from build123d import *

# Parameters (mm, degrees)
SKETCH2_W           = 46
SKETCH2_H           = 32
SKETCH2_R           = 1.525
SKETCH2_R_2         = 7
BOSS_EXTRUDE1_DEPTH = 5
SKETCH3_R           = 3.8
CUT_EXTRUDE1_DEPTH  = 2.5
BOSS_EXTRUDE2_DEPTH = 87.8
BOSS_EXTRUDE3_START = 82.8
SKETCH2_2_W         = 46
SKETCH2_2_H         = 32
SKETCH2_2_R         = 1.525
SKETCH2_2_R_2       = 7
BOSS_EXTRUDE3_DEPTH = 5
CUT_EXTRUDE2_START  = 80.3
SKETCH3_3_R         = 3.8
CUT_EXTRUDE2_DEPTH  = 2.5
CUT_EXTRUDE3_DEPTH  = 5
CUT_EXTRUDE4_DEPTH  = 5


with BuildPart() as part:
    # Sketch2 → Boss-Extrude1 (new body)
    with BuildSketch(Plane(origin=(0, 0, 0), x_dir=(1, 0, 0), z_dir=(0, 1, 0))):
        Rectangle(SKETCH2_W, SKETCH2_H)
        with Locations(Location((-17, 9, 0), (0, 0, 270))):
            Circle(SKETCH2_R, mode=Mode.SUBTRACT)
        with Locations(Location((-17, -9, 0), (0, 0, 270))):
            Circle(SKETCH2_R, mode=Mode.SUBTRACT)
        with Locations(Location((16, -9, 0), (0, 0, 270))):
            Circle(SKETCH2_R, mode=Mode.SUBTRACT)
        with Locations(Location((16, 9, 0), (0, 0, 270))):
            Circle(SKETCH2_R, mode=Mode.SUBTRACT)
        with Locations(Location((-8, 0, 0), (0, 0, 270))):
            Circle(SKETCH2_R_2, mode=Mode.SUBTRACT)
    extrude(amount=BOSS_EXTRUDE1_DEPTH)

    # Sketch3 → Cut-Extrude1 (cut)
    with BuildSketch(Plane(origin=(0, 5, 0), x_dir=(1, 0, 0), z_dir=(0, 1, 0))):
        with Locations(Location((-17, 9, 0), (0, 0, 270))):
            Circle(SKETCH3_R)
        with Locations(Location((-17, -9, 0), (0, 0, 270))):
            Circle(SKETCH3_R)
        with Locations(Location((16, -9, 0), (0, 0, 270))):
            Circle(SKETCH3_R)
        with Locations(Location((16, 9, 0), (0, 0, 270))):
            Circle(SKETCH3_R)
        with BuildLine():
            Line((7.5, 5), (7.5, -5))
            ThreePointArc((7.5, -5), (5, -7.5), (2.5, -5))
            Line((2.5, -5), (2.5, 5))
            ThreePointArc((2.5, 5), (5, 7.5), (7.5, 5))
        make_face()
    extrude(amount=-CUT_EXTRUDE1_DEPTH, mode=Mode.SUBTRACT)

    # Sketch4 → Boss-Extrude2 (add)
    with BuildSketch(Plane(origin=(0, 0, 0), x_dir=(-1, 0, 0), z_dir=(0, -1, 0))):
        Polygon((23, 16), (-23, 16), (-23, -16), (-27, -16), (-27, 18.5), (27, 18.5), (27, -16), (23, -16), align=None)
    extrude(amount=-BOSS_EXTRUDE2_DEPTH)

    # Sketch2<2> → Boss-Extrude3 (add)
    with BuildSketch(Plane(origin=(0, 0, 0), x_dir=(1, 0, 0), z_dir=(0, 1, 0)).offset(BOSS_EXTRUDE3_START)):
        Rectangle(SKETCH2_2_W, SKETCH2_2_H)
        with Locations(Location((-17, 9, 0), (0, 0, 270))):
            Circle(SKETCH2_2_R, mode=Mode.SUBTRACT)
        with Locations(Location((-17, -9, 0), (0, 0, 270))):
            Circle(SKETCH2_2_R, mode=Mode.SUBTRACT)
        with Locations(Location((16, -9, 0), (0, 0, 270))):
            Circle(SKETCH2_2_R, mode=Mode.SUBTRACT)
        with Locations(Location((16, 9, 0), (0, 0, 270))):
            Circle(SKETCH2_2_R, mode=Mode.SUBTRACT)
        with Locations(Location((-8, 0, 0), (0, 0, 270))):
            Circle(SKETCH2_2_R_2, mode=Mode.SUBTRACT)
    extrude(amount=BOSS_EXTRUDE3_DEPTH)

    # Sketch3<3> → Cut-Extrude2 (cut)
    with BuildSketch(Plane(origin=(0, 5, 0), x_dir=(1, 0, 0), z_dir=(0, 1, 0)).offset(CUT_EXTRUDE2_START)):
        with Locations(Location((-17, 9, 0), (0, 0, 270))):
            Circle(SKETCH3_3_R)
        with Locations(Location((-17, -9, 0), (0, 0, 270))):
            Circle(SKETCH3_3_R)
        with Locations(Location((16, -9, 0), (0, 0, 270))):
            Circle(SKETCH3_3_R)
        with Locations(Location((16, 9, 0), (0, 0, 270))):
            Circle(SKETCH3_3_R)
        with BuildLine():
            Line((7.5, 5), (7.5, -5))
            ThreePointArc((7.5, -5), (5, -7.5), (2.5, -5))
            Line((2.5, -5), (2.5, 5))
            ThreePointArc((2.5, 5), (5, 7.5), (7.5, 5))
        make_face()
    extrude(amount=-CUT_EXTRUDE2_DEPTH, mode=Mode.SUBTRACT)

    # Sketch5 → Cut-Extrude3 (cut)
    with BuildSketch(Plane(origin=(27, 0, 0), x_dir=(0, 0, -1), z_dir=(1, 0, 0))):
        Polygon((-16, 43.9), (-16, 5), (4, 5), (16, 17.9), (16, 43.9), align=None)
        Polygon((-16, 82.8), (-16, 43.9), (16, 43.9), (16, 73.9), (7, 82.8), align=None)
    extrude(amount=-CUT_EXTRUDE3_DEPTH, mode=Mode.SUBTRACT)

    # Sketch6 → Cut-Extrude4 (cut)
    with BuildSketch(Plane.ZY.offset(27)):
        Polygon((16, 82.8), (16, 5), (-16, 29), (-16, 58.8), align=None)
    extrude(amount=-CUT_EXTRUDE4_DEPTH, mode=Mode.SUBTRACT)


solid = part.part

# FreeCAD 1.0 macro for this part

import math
import FreeCAD as App
import Part
import Sketcher

V = App.Vector
Q = App.Units.Quantity


def add_polygon(sketch, points):
    """Adds a closed chain of lines whose ends are joined by coincident constraints."""
    first, n = sketch.GeometryCount, len(points)
    for a, b in zip(points, points[1:] + points[:1]):
        sketch.addGeometry(Part.LineSegment(App.Vector(*a, 0), App.Vector(*b, 0)), False)
    for i in range(n):
        sketch.addConstraint(Sketcher.Constraint("Coincident", first + i, 2, first + (i + 1) % n, 1))

doc = App.newDocument("Part")
body = doc.addObject("PartDesign::Body", "Body")

# Sketch on XZ plane
sketch1 = body.newObject("Sketcher::SketchObject", "Sketch")
sketch1.AttachmentSupport = (doc.getObject("XZ_Plane"), [""])
sketch1.MapMode = "FlatFace"
add_polygon(sketch1, [(-23, -16), (-23, 16), (23, 16), (23, -16)])  # lines 0-3
sketch1.addGeometry(Part.Circle(V(-17, 9, 0), V(0, 0, 1), 1.525), False)  # 4
sketch1.addGeometry(Part.Circle(V(16, 9, 0), V(0, 0, 1), 1.525), False)  # 5
sketch1.addGeometry(Part.Circle(V(-8, 0, 0), V(0, 0, 1), 7), False)  # 6
sketch1.addGeometry(Part.Circle(V(-17, -9, 0), V(0, 0, 1), 1.525), False)  # 7
sketch1.addGeometry(Part.Circle(V(16, -9, 0), V(0, 0, 1), 1.525), False)  # 8
sketch1.addConstraint([
    Sketcher.Constraint("Vertical", 0),
    Sketcher.Constraint("Horizontal", 1),
    Sketcher.Constraint("Vertical", 2),
    Sketcher.Constraint("Horizontal", 3),
    Sketcher.Constraint("Equal", 4, 5),
    Sketcher.Constraint("Equal", 5, 7),
    Sketcher.Constraint("Equal", 7, 8),
    Sketcher.Constraint("Symmetric", 0, 2, 2, 2, -1, 1),
    Sketcher.Constraint("Symmetric", 4, 3, 7, 3, -1),
    Sketcher.Constraint("Symmetric", 5, 3, 8, 3, -1),
    Sketcher.Constraint("PointOnObject", 6, 3, -1),
    Sketcher.Constraint("Horizontal", 4, 3, 5, 3),
    Sketcher.Constraint("Diameter", 6, Q("14 mm")),
    Sketcher.Constraint("Diameter", 4, Q("3.05 mm")),
    Sketcher.Constraint("DistanceX", 1, 1, 1, 2, Q("46 mm")),
    Sketcher.Constraint("DistanceY", 0, 1, 0, 2, Q("32 mm")),
    Sketcher.Constraint("DistanceX", 4, 3, -1, 1, Q("17 mm")),
    Sketcher.Constraint("DistanceY", -1, 1, 4, 3, Q("9 mm")),
    Sketcher.Constraint("DistanceX", -1, 1, 5, 3, Q("16 mm")),
    Sketcher.Constraint("DistanceX", 6, 3, -1, 1, Q("8 mm")),
])
pad1 = body.newObject("PartDesign::Pad", "Pad")
pad1.Profile = sketch1
pad1.Length = 5
pad1.Reversed = True

# Sketch on XZ plane
sketch2 = body.newObject("Sketcher::SketchObject", "Sketch001")
sketch2.AttachmentSupport = (doc.getObject("XZ_Plane"), [""])
sketch2.MapMode = "FlatFace"
sketch2.AttachmentOffset = App.Placement(V(0, 0, -5), App.Rotation())
sketch2.addGeometry([
    Part.Circle(V(-17, -9, 0), V(0, 0, 1), 3.8),  # 0
    Part.Circle(V(-17, 9, 0), V(0, 0, 1), 3.8),  # 1
    Part.Circle(V(16, 9, 0), V(0, 0, 1), 3.8),  # 2
    Part.Circle(V(16, -9, 0), V(0, 0, 1), 3.8),  # 3
    Part.LineSegment(V(7.5, 5, 0), V(7.5, -5, 0)),  # 4
    Part.ArcOfCircle(Part.Circle(V(5, -5, 0), V(0, 0, 1), 2.5), math.radians(180), math.radians(360)),  # 5
    Part.LineSegment(V(2.5, -5, 0), V(2.5, 5, 0)),  # 6
    Part.ArcOfCircle(Part.Circle(V(5, 5, 0), V(0, 0, 1), 2.5), math.radians(0), math.radians(180)),  # 7
], False)
sketch2.addConstraint([
    Sketcher.Constraint("Tangent", 4, 2, 5, 2),
    Sketcher.Constraint("Tangent", 5, 1, 6, 1),
    Sketcher.Constraint("Tangent", 6, 2, 7, 2),
    Sketcher.Constraint("Tangent", 7, 1, 4, 1),
    Sketcher.Constraint("Vertical", 4),
    Sketcher.Constraint("Vertical", 6),
    Sketcher.Constraint("Equal", 0, 1),
    Sketcher.Constraint("Equal", 1, 2),
    Sketcher.Constraint("Equal", 2, 3),
    Sketcher.Constraint("Symmetric", 0, 3, 1, 3, -1),
    Sketcher.Constraint("Symmetric", 2, 3, 3, 3, -1),
    Sketcher.Constraint("Horizontal", 1, 3, 2, 3),
    Sketcher.Constraint("Diameter", 0, Q("7.6 mm")),
    Sketcher.Constraint("Radius", 5, Q("2.5 mm")),
    Sketcher.Constraint("DistanceY", 4, 2, 4, 1, Q("10 mm")),
    Sketcher.Constraint("DistanceX", 0, 3, -1, 1, Q("17 mm")),
    Sketcher.Constraint("DistanceY", 0, 3, -1, 1, Q("9 mm")),
    Sketcher.Constraint("DistanceX", -1, 1, 2, 3, Q("16 mm")),
    Sketcher.Constraint("DistanceX", -1, 1, 5, 3, Q("5 mm")),
    Sketcher.Constraint("DistanceY", 5, 3, -1, 1, Q("5 mm")),
])
pocket1 = body.newObject("PartDesign::Pocket", "Pocket")
pocket1.Profile = sketch2
pocket1.Length = 2.5
pocket1.Reversed = True

# Sketch on XZ plane
sketch3 = body.newObject("Sketcher::SketchObject", "Sketch002")
sketch3.AttachmentSupport = (doc.getObject("XZ_Plane"), [""])
sketch3.MapMode = "FlatFace"
add_polygon(sketch3, [(23, -16), (-23, -16), (-23, 16), (-27, 16), (-27, -18.5), (27, -18.5), (27, 16), (23, 16)])  # lines 0-7
sketch3.addConstraint([
    Sketcher.Constraint("Horizontal", 0),
    Sketcher.Constraint("Vertical", 1),
    Sketcher.Constraint("Horizontal", 2),
    Sketcher.Constraint("Vertical", 3),
    Sketcher.Constraint("Horizontal", 4),
    Sketcher.Constraint("Vertical", 5),
    Sketcher.Constraint("Horizontal", 6),
    Sketcher.Constraint("Vertical", 7),
    Sketcher.Constraint("Symmetric", 0, 2, 6, 2, -1, 1),
    Sketcher.Constraint("Symmetric", 2, 2, 5, 2, -2),
    Sketcher.Constraint("DistanceX", 0, 2, 0, 1, Q("46 mm")),
    Sketcher.Constraint("DistanceX", 2, 2, 2, 1, Q("4 mm")),
    Sketcher.Constraint("DistanceY", 1, 1, 1, 2, Q("32 mm")),
    Sketcher.Constraint("DistanceY", 3, 2, 3, 1, Q("34.5 mm")),
])
pad2 = body.newObject("PartDesign::Pad", "Pad001")
pad2.Profile = sketch3
pad2.Length = 87.8
pad2.Reversed = True

# Sketch on XZ plane
sketch4 = body.newObject("Sketcher::SketchObject", "Sketch003")
sketch4.AttachmentSupport = (doc.getObject("XZ_Plane"), [""])
sketch4.MapMode = "FlatFace"
sketch4.AttachmentOffset = App.Placement(V(0, 0, -82.8), App.Rotation())
add_polygon(sketch4, [(-23, -16), (-23, 16), (23, 16), (23, -16)])  # lines 0-3
sketch4.addGeometry(Part.Circle(V(-17, 9, 0), V(0, 0, 1), 1.525), False)  # 4
sketch4.addGeometry(Part.Circle(V(16, 9, 0), V(0, 0, 1), 1.525), False)  # 5
sketch4.addGeometry(Part.Circle(V(-8, 0, 0), V(0, 0, 1), 7), False)  # 6
sketch4.addGeometry(Part.Circle(V(-17, -9, 0), V(0, 0, 1), 1.525), False)  # 7
sketch4.addGeometry(Part.Circle(V(16, -9, 0), V(0, 0, 1), 1.525), False)  # 8
sketch4.addConstraint([
    Sketcher.Constraint("Vertical", 0),
    Sketcher.Constraint("Horizontal", 1),
    Sketcher.Constraint("Vertical", 2),
    Sketcher.Constraint("Horizontal", 3),
    Sketcher.Constraint("Equal", 4, 5),
    Sketcher.Constraint("Equal", 5, 7),
    Sketcher.Constraint("Equal", 7, 8),
    Sketcher.Constraint("Symmetric", 0, 2, 2, 2, -1, 1),
    Sketcher.Constraint("Symmetric", 4, 3, 7, 3, -1),
    Sketcher.Constraint("Symmetric", 5, 3, 8, 3, -1),
    Sketcher.Constraint("PointOnObject", 6, 3, -1),
    Sketcher.Constraint("Horizontal", 4, 3, 5, 3),
    Sketcher.Constraint("Diameter", 6, Q("14 mm")),
    Sketcher.Constraint("Diameter", 4, Q("3.05 mm")),
    Sketcher.Constraint("DistanceX", 1, 1, 1, 2, Q("46 mm")),
    Sketcher.Constraint("DistanceY", 0, 1, 0, 2, Q("32 mm")),
    Sketcher.Constraint("DistanceX", 4, 3, -1, 1, Q("17 mm")),
    Sketcher.Constraint("DistanceY", -1, 1, 4, 3, Q("9 mm")),
    Sketcher.Constraint("DistanceX", -1, 1, 5, 3, Q("16 mm")),
    Sketcher.Constraint("DistanceX", 6, 3, -1, 1, Q("8 mm")),
])
pad3 = body.newObject("PartDesign::Pad", "Pad002")
pad3.Profile = sketch4
pad3.Length = 5
pad3.Reversed = True

# Sketch on XZ plane
sketch5 = body.newObject("Sketcher::SketchObject", "Sketch004")
sketch5.AttachmentSupport = (doc.getObject("XZ_Plane"), [""])
sketch5.MapMode = "FlatFace"
sketch5.AttachmentOffset = App.Placement(V(0, 0, -85.3), App.Rotation())
sketch5.addGeometry([
    Part.Circle(V(-17, -9, 0), V(0, 0, 1), 3.8),  # 0
    Part.Circle(V(-17, 9, 0), V(0, 0, 1), 3.8),  # 1
    Part.Circle(V(16, 9, 0), V(0, 0, 1), 3.8),  # 2
    Part.Circle(V(16, -9, 0), V(0, 0, 1), 3.8),  # 3
    Part.LineSegment(V(7.5, 5, 0), V(7.5, -5, 0)),  # 4
    Part.ArcOfCircle(Part.Circle(V(5, -5, 0), V(0, 0, 1), 2.5), math.radians(180), math.radians(360)),  # 5
    Part.LineSegment(V(2.5, -5, 0), V(2.5, 5, 0)),  # 6
    Part.ArcOfCircle(Part.Circle(V(5, 5, 0), V(0, 0, 1), 2.5), math.radians(0), math.radians(180)),  # 7
], False)
sketch5.addConstraint([
    Sketcher.Constraint("Tangent", 4, 2, 5, 2),
    Sketcher.Constraint("Tangent", 5, 1, 6, 1),
    Sketcher.Constraint("Tangent", 6, 2, 7, 2),
    Sketcher.Constraint("Tangent", 7, 1, 4, 1),
    Sketcher.Constraint("Vertical", 4),
    Sketcher.Constraint("Vertical", 6),
    Sketcher.Constraint("Equal", 0, 1),
    Sketcher.Constraint("Equal", 1, 2),
    Sketcher.Constraint("Equal", 2, 3),
    Sketcher.Constraint("Symmetric", 0, 3, 1, 3, -1),
    Sketcher.Constraint("Symmetric", 2, 3, 3, 3, -1),
    Sketcher.Constraint("Horizontal", 1, 3, 2, 3),
    Sketcher.Constraint("Diameter", 0, Q("7.6 mm")),
    Sketcher.Constraint("Radius", 5, Q("2.5 mm")),
    Sketcher.Constraint("DistanceY", 4, 2, 4, 1, Q("10 mm")),
    Sketcher.Constraint("DistanceX", 0, 3, -1, 1, Q("17 mm")),
    Sketcher.Constraint("DistanceY", 0, 3, -1, 1, Q("9 mm")),
    Sketcher.Constraint("DistanceX", -1, 1, 2, 3, Q("16 mm")),
    Sketcher.Constraint("DistanceX", -1, 1, 5, 3, Q("5 mm")),
    Sketcher.Constraint("DistanceY", 5, 3, -1, 1, Q("5 mm")),
])
pocket2 = body.newObject("PartDesign::Pocket", "Pocket001")
pocket2.Profile = sketch5
pocket2.Length = 2.5
pocket2.Reversed = True

# Sketch on YZ plane
sketch6 = body.newObject("Sketcher::SketchObject", "Sketch005")
sketch6.AttachmentSupport = (doc.getObject("YZ_Plane"), [""])
sketch6.MapMode = "FlatFace"
sketch6.AttachmentOffset = App.Placement(V(0, 0, 27), App.Rotation())
add_polygon(sketch6, [(5, 16), (5, -4), (17.9, -16), (73.9, -16), (82.8, -7), (82.8, 16)])  # lines 0-5
sketch6.addConstraint([
    Sketcher.Constraint("Vertical", 0),
    Sketcher.Constraint("Horizontal", 2),
    Sketcher.Constraint("Vertical", 4),
    Sketcher.Constraint("Horizontal", 5),
    Sketcher.Constraint("DistanceX", 2, 1, 2, 2, Q("56 mm")),
    Sketcher.Constraint("DistanceY", 0, 2, 0, 1, Q("20 mm")),
    Sketcher.Constraint("DistanceY", 4, 1, 4, 2, Q("23 mm")),
    Sketcher.Constraint("DistanceX", 5, 2, 5, 1, Q("77.8 mm")),
    Sketcher.Constraint("DistanceX", -1, 1, 0, 2, Q("5 mm")),
    Sketcher.Constraint("DistanceY", 0, 2, -1, 1, Q("4 mm")),
    Sketcher.Constraint("DistanceY", 1, 2, -1, 1, Q("16 mm")),
    Sketcher.Constraint("DistanceX", -1, 1, 1, 2, Q("17.9 mm")),
])
pocket3 = body.newObject("PartDesign::Pocket", "Pocket002")
pocket3.Profile = sketch6
pocket3.Length = 5

# Sketch on YZ plane
sketch7 = body.newObject("Sketcher::SketchObject", "Sketch006")
sketch7.AttachmentSupport = (doc.getObject("YZ_Plane"), [""])
sketch7.MapMode = "FlatFace"
sketch7.AttachmentOffset = App.Placement(V(0, 0, -27), App.Rotation())
add_polygon(sketch7, [(5, 16), (82.8, 16), (58.8, -16), (29, -16)])  # lines 0-3
sketch7.addConstraint([
    Sketcher.Constraint("Horizontal", 0),
    Sketcher.Constraint("Horizontal", 2),
    Sketcher.Constraint("Equal", 1, 3),
    Sketcher.Constraint("Distance", 1, Q("40 mm")),
    Sketcher.Constraint("DistanceX", 0, 1, 0, 2, Q("77.8 mm")),
    Sketcher.Constraint("DistanceX", 2, 2, 2, 1, Q("29.8 mm")),
    Sketcher.Constraint("DistanceY", -1, 1, 0, 2, Q("16 mm")),
    Sketcher.Constraint("DistanceX", -1, 1, 2, 2, Q("29 mm")),
])
pocket4 = body.newObject("PartDesign::Pocket", "Pocket003")
pocket4.Profile = sketch7
pocket4.Length = 5
pocket4.Reversed = True

doc.recompute()
